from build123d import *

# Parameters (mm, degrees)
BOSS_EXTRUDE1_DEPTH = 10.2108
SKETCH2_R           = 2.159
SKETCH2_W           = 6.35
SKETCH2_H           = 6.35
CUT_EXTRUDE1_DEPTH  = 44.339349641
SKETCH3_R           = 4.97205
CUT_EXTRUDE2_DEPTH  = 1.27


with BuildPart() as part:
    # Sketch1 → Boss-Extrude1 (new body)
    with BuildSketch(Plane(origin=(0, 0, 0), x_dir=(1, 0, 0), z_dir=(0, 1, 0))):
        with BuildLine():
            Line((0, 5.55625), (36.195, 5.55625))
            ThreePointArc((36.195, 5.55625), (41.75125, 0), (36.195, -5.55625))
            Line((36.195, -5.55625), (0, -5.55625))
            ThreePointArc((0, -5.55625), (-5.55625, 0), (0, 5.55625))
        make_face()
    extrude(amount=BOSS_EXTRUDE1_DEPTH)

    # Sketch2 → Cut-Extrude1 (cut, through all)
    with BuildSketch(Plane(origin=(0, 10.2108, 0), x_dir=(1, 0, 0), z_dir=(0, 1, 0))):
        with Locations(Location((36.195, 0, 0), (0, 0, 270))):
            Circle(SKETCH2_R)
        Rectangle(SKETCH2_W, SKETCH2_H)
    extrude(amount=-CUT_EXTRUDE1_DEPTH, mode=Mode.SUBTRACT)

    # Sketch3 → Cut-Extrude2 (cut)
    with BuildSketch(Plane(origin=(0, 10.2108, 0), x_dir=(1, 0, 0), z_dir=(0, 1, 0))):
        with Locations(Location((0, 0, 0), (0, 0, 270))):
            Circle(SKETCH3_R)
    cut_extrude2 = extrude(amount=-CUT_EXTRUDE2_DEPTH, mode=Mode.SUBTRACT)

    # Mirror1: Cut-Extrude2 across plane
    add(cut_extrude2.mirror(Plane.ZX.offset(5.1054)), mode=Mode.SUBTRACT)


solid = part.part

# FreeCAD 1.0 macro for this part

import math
import FreeCAD as App
import Part
import Sketcher

V = App.Vector
Q = App.Units.Quantity

doc = App.newDocument("Part")
body = doc.addObject("PartDesign::Body", "Body")

sketch1 = body.newObject("Sketcher::SketchObject", "Sketch")
sketch1.AttachmentSupport = (doc.getObject("XZ_Plane"), [""])
sketch1.MapMode = "FlatFace"
sketch1.addGeometry(Part.LineSegment(V(36, -6, 0), V(0, -6, 0)), False)
sketch1.addGeometry(Part.ArcOfCircle(Part.Circle(V(0, 0, 0), V(0, 0, 1), 6), math.radians(90), math.radians(270)), False)
sketch1.addGeometry(Part.LineSegment(V(0, 6, 0), V(36, 6, 0)), False)
sketch1.addGeometry(Part.ArcOfCircle(Part.Circle(V(36, 0, 0), V(0, 0, 1), 6), math.radians(-90), math.radians(90)), False)
sketch1.addConstraint(Sketcher.Constraint("Tangent", 0, 2, 1, 2))
sketch1.addConstraint(Sketcher.Constraint("Tangent", 1, 1, 2, 1))
sketch1.addConstraint(Sketcher.Constraint("Tangent", 2, 2, 3, 2))
sketch1.addConstraint(Sketcher.Constraint("Tangent", 3, 1, 0, 1))
sketch1.addConstraint(Sketcher.Constraint("Horizontal", 0))
sketch1.addConstraint(Sketcher.Constraint("Horizontal", 2))
sketch1.addConstraint(Sketcher.Constraint("Coincident", 1, 3, -1, 1))
sketch1.addConstraint(Sketcher.Constraint("Radius", 1, Q("0.21875 in")))
sketch1.addConstraint(Sketcher.Constraint("DistanceX", 0, 2, 0, 1, Q("1.425 in")))
pad1 = body.newObject("PartDesign::Pad", "Pad")
pad1.Profile = sketch1
pad1.Length = Q("0.402 in")
pad1.Reversed = True

sketch2 = body.newObject("Sketcher::SketchObject", "Sketch001")
sketch2.AttachmentSupport = (doc.getObject("XZ_Plane"), [""])
sketch2.MapMode = "FlatFace"
sketch2.AttachmentOffset = App.Placement(V(0, 0, -0.402 * 25.4), App.Rotation())
sketch2.addGeometry(Part.Circle(V(36.2, 0, 0), V(0, 0, 1), 2.2), False)
sketch2.addGeometry(Part.LineSegment(V(-3.2, -3.2, 0), V(-3.2, 3.2, 0)), False)
sketch2.addGeometry(Part.LineSegment(V(-3.2, 3.2, 0), V(3.2, 3.2, 0)), False)
sketch2.addGeometry(Part.LineSegment(V(3.2, 3.2, 0), V(3.2, -3.2, 0)), False)
sketch2.addGeometry(Part.LineSegment(V(3.2, -3.2, 0), V(-3.2, -3.2, 0)), False)
sketch2.addConstraint(Sketcher.Constraint("Coincident", 1, 2, 2, 1))
sketch2.addConstraint(Sketcher.Constraint("Coincident", 2, 2, 3, 1))
sketch2.addConstraint(Sketcher.Constraint("Coincident", 3, 2, 4, 1))
sketch2.addConstraint(Sketcher.Constraint("Coincident", 4, 2, 1, 1))
sketch2.addConstraint(Sketcher.Constraint("Vertical", 1))
sketch2.addConstraint(Sketcher.Constraint("Horizontal", 2))
sketch2.addConstraint(Sketcher.Constraint("Vertical", 3))
sketch2.addConstraint(Sketcher.Constraint("Horizontal", 4))
sketch2.addConstraint(Sketcher.Constraint("Symmetric", 1, 2, 3, 2, -1, 1))
sketch2.addConstraint(Sketcher.Constraint("PointOnObject", 0, 3, -1))
sketch2.addConstraint(Sketcher.Constraint("Equal", 4, 1))
sketch2.addConstraint(Sketcher.Constraint("Diameter", 0, Q("0.17 in")))
sketch2.addConstraint(Sketcher.Constraint("DistanceX", 2, 1, 2, 2, Q("0.25 in")))
sketch2.addConstraint(Sketcher.Constraint("DistanceX", 2, 2, 0, 3, Q("1.3 in")))
pocket1 = body.newObject("PartDesign::Pocket", "Pocket")
pocket1.Profile = sketch2
pocket1.Type = "ThroughAll"
pocket1.Reversed = True

sketch3 = body.newObject("Sketcher::SketchObject", "Sketch002")
sketch3.AttachmentSupport = (doc.getObject("XZ_Plane"), [""])
sketch3.MapMode = "FlatFace"
sketch3.AttachmentOffset = App.Placement(V(0, 0, -0.402 * 25.4), App.Rotation())
sketch3.addGeometry(Part.Circle(V(0, 0, 0), V(0, 0, 1), 5), False)
sketch3.addConstraint(Sketcher.Constraint("Coincident", 0, 3, -1, 1))
sketch3.addConstraint(Sketcher.Constraint("Diameter", 0, Q("0.3915 in")))
pocket2 = body.newObject("PartDesign::Pocket", "Pocket001")
pocket2.Profile = sketch3
pocket2.Length = Q("0.05 in")
pocket2.Reversed = True
doc.recompute()

datumplane = body.newObject("PartDesign::Plane", "DatumPlane")
datumplane.AttachmentSupport = (doc.getObject("XZ_Plane"), [""])
datumplane.MapMode = "FlatFace"
datumplane.AttachmentOffset = App.Placement(V(0, 0, -0.201 * 25.4), App.Rotation())
mirrored = body.newObject("PartDesign::Mirrored", "Mirrored")
mirrored.Originals = [pocket2]
mirrored.MirrorPlane = (datumplane, [""])
body.Tip = mirrored

doc.recompute()
